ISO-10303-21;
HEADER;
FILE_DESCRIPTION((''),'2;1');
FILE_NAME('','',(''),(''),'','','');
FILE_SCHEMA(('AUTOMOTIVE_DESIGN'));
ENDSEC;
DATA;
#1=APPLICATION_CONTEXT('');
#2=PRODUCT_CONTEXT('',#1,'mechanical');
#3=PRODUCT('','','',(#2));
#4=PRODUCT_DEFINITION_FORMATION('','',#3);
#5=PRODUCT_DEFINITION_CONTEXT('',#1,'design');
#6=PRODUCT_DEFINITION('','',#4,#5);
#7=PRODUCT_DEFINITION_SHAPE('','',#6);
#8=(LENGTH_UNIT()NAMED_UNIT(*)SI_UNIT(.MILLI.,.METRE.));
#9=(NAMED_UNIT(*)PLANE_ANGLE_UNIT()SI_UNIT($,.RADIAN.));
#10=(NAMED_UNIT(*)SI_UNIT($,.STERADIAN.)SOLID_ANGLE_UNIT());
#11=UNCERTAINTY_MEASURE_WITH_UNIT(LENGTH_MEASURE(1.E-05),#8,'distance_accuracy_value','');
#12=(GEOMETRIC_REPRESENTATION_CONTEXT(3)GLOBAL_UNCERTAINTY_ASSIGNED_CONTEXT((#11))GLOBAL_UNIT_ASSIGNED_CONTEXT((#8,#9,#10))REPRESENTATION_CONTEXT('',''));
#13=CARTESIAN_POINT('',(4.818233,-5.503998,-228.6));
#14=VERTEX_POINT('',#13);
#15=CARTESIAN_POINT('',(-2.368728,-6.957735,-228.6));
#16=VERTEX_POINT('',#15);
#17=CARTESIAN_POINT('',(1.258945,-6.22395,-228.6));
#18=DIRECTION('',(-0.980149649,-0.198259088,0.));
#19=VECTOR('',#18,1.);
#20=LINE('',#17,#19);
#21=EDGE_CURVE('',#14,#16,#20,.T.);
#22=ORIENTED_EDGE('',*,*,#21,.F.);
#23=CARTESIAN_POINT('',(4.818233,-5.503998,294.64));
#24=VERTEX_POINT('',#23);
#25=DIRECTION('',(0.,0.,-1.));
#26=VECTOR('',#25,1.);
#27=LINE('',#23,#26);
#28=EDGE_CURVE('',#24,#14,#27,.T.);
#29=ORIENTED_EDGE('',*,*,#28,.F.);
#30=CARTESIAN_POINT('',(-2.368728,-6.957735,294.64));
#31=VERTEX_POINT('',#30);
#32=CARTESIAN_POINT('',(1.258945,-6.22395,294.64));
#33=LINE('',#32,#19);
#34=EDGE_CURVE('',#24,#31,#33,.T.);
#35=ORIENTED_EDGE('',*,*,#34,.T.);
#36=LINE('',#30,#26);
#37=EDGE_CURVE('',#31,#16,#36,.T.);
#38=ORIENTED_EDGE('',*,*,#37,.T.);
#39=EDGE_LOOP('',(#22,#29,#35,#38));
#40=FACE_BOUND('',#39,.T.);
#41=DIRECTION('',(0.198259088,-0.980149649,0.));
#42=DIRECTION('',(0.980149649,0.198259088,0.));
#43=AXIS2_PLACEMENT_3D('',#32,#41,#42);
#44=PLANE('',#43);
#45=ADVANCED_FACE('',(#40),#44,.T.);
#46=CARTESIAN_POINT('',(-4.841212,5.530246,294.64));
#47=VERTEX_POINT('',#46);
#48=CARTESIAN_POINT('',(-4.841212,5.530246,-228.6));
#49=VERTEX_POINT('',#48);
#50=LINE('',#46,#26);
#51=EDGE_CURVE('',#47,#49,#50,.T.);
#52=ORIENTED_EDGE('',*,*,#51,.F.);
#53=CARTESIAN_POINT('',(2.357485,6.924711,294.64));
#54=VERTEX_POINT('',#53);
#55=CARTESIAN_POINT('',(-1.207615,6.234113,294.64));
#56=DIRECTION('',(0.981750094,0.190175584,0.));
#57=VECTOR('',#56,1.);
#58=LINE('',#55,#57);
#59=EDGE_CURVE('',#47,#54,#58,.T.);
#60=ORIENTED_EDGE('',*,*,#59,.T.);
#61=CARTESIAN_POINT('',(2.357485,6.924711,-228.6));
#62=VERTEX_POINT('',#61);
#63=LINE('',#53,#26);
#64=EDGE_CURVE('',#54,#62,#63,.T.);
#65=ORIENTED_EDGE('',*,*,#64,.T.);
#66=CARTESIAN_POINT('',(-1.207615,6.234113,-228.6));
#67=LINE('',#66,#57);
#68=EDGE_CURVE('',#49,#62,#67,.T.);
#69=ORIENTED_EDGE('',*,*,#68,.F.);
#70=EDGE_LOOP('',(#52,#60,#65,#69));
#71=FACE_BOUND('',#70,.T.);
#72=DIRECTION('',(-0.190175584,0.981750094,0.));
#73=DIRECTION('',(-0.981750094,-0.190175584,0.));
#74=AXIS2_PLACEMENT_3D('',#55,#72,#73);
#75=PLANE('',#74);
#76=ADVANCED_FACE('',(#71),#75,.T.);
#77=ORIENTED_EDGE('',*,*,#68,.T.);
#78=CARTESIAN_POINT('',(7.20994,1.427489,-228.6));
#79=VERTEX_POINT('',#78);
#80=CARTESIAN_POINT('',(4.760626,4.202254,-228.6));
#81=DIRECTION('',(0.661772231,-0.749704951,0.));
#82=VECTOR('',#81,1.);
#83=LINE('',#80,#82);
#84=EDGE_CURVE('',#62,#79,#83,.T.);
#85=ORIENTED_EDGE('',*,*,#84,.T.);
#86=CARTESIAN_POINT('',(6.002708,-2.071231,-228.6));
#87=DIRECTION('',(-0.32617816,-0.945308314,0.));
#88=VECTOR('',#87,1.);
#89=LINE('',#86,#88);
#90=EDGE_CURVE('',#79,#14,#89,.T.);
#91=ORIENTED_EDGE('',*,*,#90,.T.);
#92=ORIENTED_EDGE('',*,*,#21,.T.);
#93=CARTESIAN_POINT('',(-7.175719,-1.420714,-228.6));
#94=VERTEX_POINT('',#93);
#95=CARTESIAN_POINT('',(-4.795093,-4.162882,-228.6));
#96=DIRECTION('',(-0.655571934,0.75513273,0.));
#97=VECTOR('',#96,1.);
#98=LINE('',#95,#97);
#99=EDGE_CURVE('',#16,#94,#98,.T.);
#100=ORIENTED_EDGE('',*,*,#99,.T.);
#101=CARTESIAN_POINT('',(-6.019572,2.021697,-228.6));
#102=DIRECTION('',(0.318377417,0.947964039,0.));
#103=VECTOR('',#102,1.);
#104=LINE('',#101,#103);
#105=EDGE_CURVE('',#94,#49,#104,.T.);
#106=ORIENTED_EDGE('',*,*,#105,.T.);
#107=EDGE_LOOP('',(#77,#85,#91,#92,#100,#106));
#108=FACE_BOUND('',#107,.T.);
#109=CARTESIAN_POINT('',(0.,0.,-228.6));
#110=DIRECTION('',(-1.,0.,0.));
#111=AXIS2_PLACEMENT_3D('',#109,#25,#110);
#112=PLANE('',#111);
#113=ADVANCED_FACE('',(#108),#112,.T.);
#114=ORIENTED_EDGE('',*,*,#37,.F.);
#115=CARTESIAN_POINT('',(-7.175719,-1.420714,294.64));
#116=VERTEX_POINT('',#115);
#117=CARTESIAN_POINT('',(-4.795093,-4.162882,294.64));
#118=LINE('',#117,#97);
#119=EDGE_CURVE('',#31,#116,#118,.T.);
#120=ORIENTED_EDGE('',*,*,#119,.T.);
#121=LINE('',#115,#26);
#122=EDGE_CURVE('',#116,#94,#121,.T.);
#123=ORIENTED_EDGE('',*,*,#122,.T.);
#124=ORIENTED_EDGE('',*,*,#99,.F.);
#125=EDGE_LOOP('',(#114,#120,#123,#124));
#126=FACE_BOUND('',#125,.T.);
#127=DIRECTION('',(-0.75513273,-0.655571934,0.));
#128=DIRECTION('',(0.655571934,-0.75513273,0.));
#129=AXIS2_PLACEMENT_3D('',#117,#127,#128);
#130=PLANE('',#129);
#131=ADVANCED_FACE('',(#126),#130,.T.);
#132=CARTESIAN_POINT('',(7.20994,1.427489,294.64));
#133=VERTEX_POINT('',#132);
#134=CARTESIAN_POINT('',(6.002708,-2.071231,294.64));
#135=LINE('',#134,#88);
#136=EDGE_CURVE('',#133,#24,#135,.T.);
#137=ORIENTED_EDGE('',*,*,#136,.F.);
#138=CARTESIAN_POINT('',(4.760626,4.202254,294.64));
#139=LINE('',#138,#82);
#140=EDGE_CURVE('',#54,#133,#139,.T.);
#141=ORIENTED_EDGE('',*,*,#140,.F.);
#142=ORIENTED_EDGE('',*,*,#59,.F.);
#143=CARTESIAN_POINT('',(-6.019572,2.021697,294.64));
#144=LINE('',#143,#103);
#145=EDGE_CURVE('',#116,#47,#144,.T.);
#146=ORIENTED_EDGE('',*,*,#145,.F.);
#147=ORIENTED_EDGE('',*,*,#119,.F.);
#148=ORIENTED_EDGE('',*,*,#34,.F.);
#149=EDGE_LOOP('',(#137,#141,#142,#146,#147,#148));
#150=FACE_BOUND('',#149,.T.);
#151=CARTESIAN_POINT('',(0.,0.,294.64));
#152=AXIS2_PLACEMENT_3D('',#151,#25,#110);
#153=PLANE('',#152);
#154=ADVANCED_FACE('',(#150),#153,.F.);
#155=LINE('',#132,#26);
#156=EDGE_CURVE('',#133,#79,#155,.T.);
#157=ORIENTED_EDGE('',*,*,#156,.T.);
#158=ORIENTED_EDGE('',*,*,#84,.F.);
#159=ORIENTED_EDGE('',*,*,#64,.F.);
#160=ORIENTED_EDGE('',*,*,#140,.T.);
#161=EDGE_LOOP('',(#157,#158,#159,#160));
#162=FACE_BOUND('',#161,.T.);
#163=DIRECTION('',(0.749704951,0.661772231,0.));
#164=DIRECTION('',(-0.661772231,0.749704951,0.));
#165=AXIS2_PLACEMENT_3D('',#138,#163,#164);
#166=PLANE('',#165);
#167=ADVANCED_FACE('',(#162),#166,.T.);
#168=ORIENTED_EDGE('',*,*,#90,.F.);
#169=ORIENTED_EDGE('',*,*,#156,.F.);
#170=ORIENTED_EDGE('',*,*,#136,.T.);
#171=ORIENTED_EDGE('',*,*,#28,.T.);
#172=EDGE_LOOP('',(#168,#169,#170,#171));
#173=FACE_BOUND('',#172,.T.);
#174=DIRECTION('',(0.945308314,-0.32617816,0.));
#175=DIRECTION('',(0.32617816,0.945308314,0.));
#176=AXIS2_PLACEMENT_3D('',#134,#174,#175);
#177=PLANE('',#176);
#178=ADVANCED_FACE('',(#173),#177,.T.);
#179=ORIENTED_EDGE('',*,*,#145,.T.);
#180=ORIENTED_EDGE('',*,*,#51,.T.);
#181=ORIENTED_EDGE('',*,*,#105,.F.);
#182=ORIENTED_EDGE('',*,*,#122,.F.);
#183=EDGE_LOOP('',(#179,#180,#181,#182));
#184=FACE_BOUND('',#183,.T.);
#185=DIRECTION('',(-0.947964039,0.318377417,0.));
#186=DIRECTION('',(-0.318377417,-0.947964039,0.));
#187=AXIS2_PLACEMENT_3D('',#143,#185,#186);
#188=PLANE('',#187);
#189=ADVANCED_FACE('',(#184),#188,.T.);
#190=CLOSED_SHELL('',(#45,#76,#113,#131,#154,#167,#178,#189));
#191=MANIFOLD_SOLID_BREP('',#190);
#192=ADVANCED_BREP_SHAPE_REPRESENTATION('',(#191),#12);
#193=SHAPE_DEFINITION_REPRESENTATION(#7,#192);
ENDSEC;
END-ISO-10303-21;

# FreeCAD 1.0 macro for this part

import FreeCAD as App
import Part
import Sketcher
Q = App.Units.Quantity


def add_polygon(sketch, points):
    """Adds a closed chain of lines whose ends are joined by coincident constraints."""
    first, n = sketch.GeometryCount, len(points)
    for a, b in zip(points, points[1:] + points[:1]):
        sketch.addGeometry(Part.LineSegment(App.Vector(*a, 0), App.Vector(*b, 0)), False)
    for i in range(n):
        sketch.addConstraint(Sketcher.Constraint("Coincident", first + i, 2, first + (i + 1) % n, 1))

doc = App.newDocument("Part")
body = doc.addObject("PartDesign::Body", "Body")

# Sketch on XY plane
sketch1 = body.newObject("Sketcher::SketchObject", "Sketch")
sketch1.AttachmentSupport = (doc.getObject("XY_Plane"), [""])
sketch1.MapMode = "FlatFace"
sketch1.AttachmentOffset = App.Placement(App.Vector(0, 0, -9 * 25.4), App.Rotation())
add_polygon(sketch1, [(2, 7), (7, 1), (5, -6), (-2, -7), (-7, -1), (-5, 6)])  # lines 0-5
sketch1.addConstraint([
    Sketcher.Constraint("Equal", 0, 1),
    Sketcher.Constraint("Equal", 1, 2),
    Sketcher.Constraint("Equal", 2, 3),
    Sketcher.Constraint("Equal", 3, 4),
    Sketcher.Constraint("Equal", 4, 5),
    Sketcher.Constraint("DistanceX", -1, 1, 0, 2, Q("7.20994 mm")),
    Sketcher.Constraint("DistanceY", -1, 1, 0, 2, Q("1.427489 mm")),
    Sketcher.Constraint("DistanceX", 3, 2, -1, 1, Q("7.175719 mm")),
    Sketcher.Constraint("DistanceX", 4, 2, -1, 1, Q("4.841212 mm")),
    Sketcher.Constraint("DistanceY", -1, 1, 5, 2, Q("6.924711 mm")),
    Sketcher.Constraint("DistanceX", 2, 2, 1, 2, Q("7.186961 mm")),
    Sketcher.Constraint("DistanceX", 3, 2, 2, 2, Q("4.806991 mm")),
])
pad1 = body.newObject("PartDesign::Pad", "Pad")
pad1.Profile = sketch1
pad1.Length = Q("20.6 in")

doc.recompute()
